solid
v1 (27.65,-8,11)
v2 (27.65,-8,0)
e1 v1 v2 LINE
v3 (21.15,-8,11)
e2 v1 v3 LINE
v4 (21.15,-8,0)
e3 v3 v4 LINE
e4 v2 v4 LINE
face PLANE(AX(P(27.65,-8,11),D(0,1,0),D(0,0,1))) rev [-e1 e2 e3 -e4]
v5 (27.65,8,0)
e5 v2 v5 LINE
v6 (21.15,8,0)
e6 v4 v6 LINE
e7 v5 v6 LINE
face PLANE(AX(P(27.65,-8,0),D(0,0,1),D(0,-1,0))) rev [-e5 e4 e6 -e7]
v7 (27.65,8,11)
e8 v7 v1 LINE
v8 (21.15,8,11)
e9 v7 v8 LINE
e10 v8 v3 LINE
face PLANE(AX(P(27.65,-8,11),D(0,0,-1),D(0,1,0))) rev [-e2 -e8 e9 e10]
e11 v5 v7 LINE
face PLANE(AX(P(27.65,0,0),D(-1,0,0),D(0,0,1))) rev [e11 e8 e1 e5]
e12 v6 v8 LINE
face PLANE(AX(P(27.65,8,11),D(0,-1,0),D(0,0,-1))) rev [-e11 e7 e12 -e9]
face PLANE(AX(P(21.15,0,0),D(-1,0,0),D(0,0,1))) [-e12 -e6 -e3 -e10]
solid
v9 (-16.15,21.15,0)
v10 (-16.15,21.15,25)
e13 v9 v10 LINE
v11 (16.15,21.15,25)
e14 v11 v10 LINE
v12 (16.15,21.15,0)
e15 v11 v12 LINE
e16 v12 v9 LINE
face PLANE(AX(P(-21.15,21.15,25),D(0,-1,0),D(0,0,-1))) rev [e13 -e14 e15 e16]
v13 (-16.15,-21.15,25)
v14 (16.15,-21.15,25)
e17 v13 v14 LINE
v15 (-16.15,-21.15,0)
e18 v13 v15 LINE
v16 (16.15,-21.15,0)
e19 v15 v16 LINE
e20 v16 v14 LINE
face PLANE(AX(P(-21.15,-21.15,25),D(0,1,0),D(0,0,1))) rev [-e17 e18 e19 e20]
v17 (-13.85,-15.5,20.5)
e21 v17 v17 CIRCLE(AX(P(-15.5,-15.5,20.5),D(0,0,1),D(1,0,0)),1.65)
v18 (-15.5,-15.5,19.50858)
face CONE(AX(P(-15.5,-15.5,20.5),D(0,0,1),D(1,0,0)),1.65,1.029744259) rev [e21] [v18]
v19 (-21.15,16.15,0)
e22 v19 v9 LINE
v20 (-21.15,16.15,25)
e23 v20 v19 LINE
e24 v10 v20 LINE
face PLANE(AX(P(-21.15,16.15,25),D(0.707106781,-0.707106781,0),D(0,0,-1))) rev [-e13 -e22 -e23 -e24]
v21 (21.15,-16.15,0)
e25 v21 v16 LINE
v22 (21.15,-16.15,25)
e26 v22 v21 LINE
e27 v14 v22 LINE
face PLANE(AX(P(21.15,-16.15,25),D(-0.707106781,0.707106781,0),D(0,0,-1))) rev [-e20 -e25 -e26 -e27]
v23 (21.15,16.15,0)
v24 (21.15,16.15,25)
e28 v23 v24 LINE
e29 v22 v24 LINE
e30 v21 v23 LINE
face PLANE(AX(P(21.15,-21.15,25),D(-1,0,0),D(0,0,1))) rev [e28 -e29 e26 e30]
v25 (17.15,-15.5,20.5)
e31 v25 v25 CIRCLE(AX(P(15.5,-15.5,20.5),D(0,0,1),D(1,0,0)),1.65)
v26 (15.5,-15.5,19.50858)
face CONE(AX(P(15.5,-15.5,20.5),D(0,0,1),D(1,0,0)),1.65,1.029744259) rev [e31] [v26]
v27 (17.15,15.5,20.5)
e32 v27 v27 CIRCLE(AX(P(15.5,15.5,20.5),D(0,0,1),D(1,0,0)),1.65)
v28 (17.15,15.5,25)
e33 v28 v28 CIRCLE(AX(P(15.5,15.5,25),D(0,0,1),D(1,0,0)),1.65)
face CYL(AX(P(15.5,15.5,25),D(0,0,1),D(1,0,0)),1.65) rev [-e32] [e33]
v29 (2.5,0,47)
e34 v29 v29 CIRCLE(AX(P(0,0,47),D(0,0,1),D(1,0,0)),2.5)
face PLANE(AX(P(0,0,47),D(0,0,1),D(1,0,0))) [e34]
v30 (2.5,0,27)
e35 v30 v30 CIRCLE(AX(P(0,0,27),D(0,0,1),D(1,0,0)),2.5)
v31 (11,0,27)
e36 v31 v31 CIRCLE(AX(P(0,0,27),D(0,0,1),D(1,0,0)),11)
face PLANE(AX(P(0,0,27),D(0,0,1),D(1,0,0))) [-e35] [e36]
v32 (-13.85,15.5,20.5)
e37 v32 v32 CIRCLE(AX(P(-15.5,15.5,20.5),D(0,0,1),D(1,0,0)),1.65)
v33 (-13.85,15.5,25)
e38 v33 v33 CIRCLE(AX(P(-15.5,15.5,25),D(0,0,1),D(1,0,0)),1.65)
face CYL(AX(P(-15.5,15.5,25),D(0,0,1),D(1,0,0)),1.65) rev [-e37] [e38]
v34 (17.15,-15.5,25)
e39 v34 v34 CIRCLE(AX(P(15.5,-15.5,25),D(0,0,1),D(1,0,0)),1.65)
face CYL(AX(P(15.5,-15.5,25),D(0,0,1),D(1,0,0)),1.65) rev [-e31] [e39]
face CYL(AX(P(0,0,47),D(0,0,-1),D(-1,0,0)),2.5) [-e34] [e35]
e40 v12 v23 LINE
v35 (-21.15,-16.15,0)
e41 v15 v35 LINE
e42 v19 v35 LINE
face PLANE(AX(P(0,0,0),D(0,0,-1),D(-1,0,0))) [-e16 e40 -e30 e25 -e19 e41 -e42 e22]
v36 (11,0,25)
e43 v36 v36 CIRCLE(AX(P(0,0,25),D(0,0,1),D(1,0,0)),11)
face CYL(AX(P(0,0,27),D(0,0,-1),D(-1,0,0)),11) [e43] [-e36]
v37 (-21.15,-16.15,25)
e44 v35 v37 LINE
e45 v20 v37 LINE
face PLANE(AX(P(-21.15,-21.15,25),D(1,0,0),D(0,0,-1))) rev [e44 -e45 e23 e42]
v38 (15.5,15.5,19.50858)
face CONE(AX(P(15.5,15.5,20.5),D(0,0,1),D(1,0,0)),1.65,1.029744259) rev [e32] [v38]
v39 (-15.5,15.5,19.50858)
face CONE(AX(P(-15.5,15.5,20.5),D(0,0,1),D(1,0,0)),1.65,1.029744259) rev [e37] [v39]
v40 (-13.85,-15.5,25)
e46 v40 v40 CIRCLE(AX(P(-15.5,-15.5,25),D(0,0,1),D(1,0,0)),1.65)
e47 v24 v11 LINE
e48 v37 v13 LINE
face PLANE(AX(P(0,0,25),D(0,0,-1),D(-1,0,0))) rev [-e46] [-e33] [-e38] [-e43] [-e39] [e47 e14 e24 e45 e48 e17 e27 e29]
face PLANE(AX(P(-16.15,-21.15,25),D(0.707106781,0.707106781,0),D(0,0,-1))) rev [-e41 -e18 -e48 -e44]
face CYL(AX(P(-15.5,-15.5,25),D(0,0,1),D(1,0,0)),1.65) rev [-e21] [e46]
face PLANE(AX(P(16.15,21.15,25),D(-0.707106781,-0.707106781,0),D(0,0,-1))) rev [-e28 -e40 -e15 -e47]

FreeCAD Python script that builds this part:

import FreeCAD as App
import Part
import Sketcher

V = App.Vector


def edges_at(feature, points):
    """Names of the edges that pass closest to the given points."""
    edges = feature.Shape.Edges
    near = lambda p: min(range(len(edges)), key=lambda i: edges[i].distToShape(Part.Vertex(*p))[0])
    return sorted({f"Edge{near(p) + 1}" for p in points})

doc = App.newDocument("Part")
body = doc.addObject("PartDesign::Body", "Body")

# Sketch on XY plane
sketch1 = body.newObject("Sketcher::SketchObject", "Sketch")
sketch1.AttachmentSupport = (doc.getObject("XY_Plane"), [""])
sketch1.MapMode = "FlatFace"
sketch1.addGeometry([
    Part.LineSegment(V(-21, 21, 0), V(-21, -21, 0)),
    Part.LineSegment(V(-21, -21, 0), V(21, -21, 0)),
    Part.LineSegment(V(21, -21, 0), V(21, 21, 0)),
    Part.LineSegment(V(21, 21, 0), V(-21, 21, 0)),
], False)
sketch1.addConstraint([
    Sketcher.Constraint("Coincident", 0, 2, 1, 1),
    Sketcher.Constraint("Coincident", 1, 2, 2, 1),
    Sketcher.Constraint("Coincident", 2, 2, 3, 1),
    Sketcher.Constraint("Coincident", 3, 2, 0, 1),
    Sketcher.Constraint("Vertical", 0),
    Sketcher.Constraint("Horizontal", 1),
    Sketcher.Constraint("Vertical", 2),
    Sketcher.Constraint("Horizontal", 3),
    Sketcher.Constraint("Symmetric", 0, 2, 2, 2, -1, 1),
    Sketcher.Constraint("Equal", 3, 0),
    Sketcher.Constraint("DistanceX", 1, 1, 1, 2, 42.3),
])
pad1 = body.newObject("PartDesign::Pad", "Pad")
pad1.Profile = sketch1
pad1.Length = 25
doc.recompute()

chamfer = body.newObject("PartDesign::Chamfer", "Chamfer")
chamfer.Base = (pad1, edges_at(pad1, [
    (21.15, -21.15, 12.5),
    (-21.15, -21.15, 12.5),
    (-21.15, 21.15, 12.5),
    (21.15, 21.15, 12.5),
]))
chamfer.Size = 5

# Sketch on XY plane
sketch2 = body.newObject("Sketcher::SketchObject", "Sketch001")
sketch2.AttachmentSupport = (doc.getObject("XY_Plane"), [""])
sketch2.MapMode = "FlatFace"
sketch2.AttachmentOffset = App.Placement(V(0, 0, 25), App.Rotation())
sketch2.addGeometry(Part.Circle(V(0, 0, 0), V(0, 0, 1), 11), False)
sketch2.addConstraint([
    Sketcher.Constraint("Coincident", 0, 3, -1, 1),
    Sketcher.Constraint("Diameter", 0, 22.0),
])
pad2 = body.newObject("PartDesign::Pad", "Pad001")
pad2.Profile = sketch2
pad2.Length = 2

# Sketch on XY plane
sketch3 = body.newObject("Sketcher::SketchObject", "Sketch002")
sketch3.AttachmentSupport = (doc.getObject("XY_Plane"), [""])
sketch3.MapMode = "FlatFace"
sketch3.AttachmentOffset = App.Placement(V(0, 0, 27), App.Rotation())
sketch3.addGeometry(Part.Circle(V(0, 0, 0), V(0, 0, 1), 2.5), False)
sketch3.addConstraint([
    Sketcher.Constraint("Coincident", 0, 3, -1, 1),
    Sketcher.Constraint("Diameter", 0, 5.0),
])
pad3 = body.newObject("PartDesign::Pad", "Pad002")
pad3.Profile = sketch3
pad3.Length = 20

# Sketch on XY plane
sketch4 = body.newObject("Sketcher::SketchObject", "Sketch003")
sketch4.AttachmentSupport = (doc.getObject("XY_Plane"), [""])
sketch4.MapMode = "FlatFace"
sketch4.AttachmentOffset = App.Placement(V(0, 0, 25), App.Rotation())
sketch4.addGeometry([
    Part.Circle(V(-15.5, -15.5, 0), V(0, 0, 1), 1.6),
    Part.Circle(V(15.5, 15.5, 0), V(0, 0, 1), 1.6),
    Part.Circle(V(-15.5, 15.5, 0), V(0, 0, 1), 1.6),
    Part.Circle(V(15.5, -15.5, 0), V(0, 0, 1), 1.6),
], False)
sketch4.addConstraint([
    Sketcher.Constraint("Equal", 0, 1),
    Sketcher.Constraint("Equal", 1, 2),
    Sketcher.Constraint("Equal", 2, 3),
    Sketcher.Constraint("Symmetric", 0, 3, 1, 3, -1, 1),
    Sketcher.Constraint("Symmetric", 2, 3, 3, 3, -1, 1),
    Sketcher.Constraint("Symmetric", 1, 3, 2, 3, -2),
    Sketcher.Constraint("Diameter", 0, 3.3),
    Sketcher.Constraint("DistanceX", 0, 3, 1, 3, 31.0),
    Sketcher.Constraint("DistanceY", 0, 3, 1, 3, 31.0),
])
doc.recompute()
hole = body.newObject("PartDesign::Hole", "Hole")
hole.Profile = sketch4
hole.ThreadType = "None"
hole.Diameter = 3.3
hole.DepthType = "Dimension"
hole.Depth = 4.5
hole.DrillPoint = "Angled"
hole.DrillPointAngle = 118
body2 = doc.addObject("PartDesign::Body", "Body001")

# Sketch on YZ plane
sketch5 = body2.newObject("Sketcher::SketchObject", "Sketch004")
sketch5.AttachmentSupport = (doc.getObject("YZ_Plane001"), [""])
sketch5.MapMode = "FlatFace"
sketch5.AttachmentOffset = App.Placement(V(0, 0, 21.15), App.Rotation())
sketch5.addGeometry([
    Part.LineSegment(V(8, 11, 0), V(-8, 11, 0)),
    Part.LineSegment(V(-8, 11, 0), V(-8, 0, 0)),
    Part.LineSegment(V(-8, 0, 0), V(8, 0, 0)),
    Part.LineSegment(V(8, 0, 0), V(8, 11, 0)),
], False)
sketch5.addConstraint([
    Sketcher.Constraint("Coincident", 0, 2, 1, 1),
    Sketcher.Constraint("Coincident", 1, 2, 2, 1),
    Sketcher.Constraint("Coincident", 2, 2, 3, 1),
    Sketcher.Constraint("Coincident", 3, 2, 0, 1),
    Sketcher.Constraint("Horizontal", 0),
    Sketcher.Constraint("Vertical", 1),
    Sketcher.Constraint("Horizontal", 2),
    Sketcher.Constraint("Vertical", 3),
    Sketcher.Constraint("Symmetric", 1, 2, 2, 2, -1, 1),
    Sketcher.Constraint("DistanceX", 0, 2, 0, 1, 16.0),
    Sketcher.Constraint("DistanceY", 1, 2, 1, 1, 11.0),
])
pad4 = body2.newObject("PartDesign::Pad", "Pad003")
pad4.Profile = sketch5
pad4.Length = 6.5

doc.recompute()
